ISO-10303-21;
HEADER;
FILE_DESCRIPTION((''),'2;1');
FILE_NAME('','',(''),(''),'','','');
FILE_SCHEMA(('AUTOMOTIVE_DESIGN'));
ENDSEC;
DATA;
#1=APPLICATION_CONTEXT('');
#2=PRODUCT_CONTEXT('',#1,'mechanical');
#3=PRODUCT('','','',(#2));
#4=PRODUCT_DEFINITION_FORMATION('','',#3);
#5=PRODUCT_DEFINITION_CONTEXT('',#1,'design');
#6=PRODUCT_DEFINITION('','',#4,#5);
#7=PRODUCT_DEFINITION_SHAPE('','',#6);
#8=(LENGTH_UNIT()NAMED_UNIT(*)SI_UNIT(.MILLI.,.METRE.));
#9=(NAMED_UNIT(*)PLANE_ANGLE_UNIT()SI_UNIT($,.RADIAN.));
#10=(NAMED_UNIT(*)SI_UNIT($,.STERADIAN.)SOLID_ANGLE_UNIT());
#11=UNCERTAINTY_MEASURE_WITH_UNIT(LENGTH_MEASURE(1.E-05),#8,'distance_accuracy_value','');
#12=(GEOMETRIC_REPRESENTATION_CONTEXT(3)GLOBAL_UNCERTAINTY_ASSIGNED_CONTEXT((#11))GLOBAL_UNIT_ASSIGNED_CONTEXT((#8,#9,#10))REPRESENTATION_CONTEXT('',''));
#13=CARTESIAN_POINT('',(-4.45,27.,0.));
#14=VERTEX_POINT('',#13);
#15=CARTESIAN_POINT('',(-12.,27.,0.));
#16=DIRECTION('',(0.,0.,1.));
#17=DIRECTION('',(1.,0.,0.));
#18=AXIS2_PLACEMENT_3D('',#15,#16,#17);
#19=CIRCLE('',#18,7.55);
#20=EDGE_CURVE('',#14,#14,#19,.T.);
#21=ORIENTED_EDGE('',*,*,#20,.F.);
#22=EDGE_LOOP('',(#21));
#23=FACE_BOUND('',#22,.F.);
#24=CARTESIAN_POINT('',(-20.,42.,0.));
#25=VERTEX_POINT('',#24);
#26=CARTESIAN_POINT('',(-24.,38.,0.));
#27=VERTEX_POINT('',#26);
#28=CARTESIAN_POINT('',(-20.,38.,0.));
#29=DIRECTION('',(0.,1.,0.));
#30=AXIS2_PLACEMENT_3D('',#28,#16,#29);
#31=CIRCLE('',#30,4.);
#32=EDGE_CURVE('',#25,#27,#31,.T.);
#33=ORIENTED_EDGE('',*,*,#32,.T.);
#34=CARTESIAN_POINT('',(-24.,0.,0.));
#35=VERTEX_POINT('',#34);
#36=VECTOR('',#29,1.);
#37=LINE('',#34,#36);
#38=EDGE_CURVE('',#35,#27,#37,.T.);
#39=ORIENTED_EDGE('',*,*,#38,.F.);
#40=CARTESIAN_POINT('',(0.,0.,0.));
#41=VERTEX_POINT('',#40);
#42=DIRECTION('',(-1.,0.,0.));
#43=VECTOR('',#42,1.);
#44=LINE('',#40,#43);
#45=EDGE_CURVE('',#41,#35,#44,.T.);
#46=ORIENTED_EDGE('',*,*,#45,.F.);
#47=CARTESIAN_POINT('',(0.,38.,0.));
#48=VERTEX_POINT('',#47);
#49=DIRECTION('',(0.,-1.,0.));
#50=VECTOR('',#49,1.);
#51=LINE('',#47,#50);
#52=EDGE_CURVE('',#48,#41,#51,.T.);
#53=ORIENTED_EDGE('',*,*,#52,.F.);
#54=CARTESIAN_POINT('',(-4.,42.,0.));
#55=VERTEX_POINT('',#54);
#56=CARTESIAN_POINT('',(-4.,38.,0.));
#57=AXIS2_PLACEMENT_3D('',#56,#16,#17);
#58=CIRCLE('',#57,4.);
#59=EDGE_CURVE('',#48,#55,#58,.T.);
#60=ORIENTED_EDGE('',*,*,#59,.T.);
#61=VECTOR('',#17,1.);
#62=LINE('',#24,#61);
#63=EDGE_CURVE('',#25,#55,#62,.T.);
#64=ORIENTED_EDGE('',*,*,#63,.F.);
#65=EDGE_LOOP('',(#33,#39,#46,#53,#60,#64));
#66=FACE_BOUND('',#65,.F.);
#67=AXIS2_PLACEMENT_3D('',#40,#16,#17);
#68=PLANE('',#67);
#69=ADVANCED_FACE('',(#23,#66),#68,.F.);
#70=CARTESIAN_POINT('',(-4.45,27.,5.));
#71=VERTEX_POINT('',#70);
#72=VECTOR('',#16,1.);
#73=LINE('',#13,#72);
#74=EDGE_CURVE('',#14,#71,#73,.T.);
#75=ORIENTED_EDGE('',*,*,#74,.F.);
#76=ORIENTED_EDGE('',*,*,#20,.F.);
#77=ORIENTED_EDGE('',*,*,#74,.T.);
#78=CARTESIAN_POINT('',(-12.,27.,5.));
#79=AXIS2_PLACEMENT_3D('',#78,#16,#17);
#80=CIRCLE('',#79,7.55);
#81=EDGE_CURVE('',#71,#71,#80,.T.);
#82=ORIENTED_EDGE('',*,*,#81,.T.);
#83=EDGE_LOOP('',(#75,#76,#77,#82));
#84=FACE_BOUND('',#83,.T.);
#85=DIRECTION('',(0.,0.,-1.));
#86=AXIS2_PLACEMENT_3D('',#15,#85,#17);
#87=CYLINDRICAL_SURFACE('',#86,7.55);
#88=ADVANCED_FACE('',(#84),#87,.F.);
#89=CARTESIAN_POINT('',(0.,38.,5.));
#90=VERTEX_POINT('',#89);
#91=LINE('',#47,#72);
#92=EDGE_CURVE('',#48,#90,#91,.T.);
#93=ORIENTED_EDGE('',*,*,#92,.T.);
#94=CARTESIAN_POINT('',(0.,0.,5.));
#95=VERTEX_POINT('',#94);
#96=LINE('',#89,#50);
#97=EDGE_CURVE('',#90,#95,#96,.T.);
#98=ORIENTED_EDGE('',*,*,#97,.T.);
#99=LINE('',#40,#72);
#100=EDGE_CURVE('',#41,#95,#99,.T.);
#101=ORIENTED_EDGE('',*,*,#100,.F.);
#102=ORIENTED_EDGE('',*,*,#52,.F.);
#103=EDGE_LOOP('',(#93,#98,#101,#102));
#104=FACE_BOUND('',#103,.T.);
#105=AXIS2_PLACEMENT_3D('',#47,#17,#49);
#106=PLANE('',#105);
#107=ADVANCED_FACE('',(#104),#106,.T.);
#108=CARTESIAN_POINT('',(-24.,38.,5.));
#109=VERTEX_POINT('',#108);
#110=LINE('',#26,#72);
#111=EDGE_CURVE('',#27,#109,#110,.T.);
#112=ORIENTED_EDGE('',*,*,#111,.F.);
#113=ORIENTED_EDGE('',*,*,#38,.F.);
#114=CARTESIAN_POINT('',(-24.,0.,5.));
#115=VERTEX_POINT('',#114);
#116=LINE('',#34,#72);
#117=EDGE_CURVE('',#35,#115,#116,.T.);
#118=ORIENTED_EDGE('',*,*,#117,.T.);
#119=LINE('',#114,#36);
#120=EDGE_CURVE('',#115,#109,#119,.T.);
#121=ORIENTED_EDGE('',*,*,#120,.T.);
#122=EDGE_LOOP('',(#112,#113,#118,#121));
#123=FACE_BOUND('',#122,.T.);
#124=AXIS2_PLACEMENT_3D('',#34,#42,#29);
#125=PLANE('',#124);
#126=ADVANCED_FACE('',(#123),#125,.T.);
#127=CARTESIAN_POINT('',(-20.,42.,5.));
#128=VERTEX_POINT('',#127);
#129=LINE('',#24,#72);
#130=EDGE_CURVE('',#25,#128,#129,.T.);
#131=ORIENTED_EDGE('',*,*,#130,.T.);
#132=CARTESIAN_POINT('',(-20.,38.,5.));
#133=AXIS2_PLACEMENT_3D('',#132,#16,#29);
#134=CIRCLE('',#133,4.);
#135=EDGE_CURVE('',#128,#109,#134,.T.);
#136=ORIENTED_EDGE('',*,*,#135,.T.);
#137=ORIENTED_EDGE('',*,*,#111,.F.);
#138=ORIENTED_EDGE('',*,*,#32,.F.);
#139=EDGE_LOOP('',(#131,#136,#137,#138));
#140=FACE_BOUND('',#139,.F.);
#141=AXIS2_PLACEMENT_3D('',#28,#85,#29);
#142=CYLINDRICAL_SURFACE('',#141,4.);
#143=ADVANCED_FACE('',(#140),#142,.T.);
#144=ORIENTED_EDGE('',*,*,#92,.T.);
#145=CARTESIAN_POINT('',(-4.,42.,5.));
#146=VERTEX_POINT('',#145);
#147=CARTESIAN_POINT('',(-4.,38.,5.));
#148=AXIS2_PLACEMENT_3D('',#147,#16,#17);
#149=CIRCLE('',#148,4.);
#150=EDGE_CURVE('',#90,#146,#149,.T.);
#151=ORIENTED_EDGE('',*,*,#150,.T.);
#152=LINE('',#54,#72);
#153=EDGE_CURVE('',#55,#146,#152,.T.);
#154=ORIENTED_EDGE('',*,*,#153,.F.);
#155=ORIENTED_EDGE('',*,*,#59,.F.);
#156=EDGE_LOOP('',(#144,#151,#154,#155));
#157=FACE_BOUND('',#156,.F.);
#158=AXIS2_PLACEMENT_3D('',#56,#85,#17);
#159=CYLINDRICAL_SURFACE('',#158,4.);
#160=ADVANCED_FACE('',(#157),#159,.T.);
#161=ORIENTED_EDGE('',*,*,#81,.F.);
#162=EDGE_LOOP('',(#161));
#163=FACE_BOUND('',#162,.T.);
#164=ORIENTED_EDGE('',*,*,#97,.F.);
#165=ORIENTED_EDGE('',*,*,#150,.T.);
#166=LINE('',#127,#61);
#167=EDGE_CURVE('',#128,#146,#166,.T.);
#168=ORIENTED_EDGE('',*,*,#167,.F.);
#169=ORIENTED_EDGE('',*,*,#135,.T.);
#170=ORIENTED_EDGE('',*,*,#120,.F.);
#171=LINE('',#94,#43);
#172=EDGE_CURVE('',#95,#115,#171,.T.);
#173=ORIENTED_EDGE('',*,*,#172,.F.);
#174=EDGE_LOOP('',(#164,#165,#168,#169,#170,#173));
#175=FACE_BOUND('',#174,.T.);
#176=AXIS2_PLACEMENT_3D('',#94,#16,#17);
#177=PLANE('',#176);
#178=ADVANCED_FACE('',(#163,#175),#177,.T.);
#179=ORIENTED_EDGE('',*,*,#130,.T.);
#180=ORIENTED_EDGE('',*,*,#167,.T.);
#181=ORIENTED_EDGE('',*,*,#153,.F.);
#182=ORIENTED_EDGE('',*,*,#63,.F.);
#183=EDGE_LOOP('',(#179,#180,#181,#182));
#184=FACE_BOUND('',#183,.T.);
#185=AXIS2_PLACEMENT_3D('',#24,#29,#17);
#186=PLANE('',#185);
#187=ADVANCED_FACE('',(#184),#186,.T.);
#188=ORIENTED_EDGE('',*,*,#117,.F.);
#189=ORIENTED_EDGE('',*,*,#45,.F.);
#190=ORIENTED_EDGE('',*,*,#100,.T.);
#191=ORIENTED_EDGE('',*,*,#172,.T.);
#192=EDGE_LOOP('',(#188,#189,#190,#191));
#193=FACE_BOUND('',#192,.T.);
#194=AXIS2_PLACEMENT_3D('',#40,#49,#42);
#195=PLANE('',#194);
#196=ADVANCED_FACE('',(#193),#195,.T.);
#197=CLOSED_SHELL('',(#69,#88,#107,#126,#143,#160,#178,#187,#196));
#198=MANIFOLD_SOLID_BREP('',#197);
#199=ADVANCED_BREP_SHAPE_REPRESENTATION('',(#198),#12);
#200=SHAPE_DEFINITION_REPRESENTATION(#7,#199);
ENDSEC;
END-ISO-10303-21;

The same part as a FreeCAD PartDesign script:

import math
import FreeCAD as App
import Part
import Sketcher

V = App.Vector

doc = App.newDocument("Part")
params = doc.addObject("Spreadsheet::Sheet", "Params")
for row, (alias, value) in enumerate([
    ("sketch1_radius", "4 mm"),
    ("sketch1_diameter", "15.1 mm"),
    ("sketch1_width", "24 mm"),
    ("pad1_length", "5 mm"),
], start=1):
    params.set(f"A{row}", alias)
    params.set(f"B{row}", "=" + value)
    params.setAlias(f"B{row}", alias)

body = doc.addObject("PartDesign::Body", "Body")

sketch1 = doc.addObject("Sketcher::SketchObject", "Sketch")
body.addObject(sketch1)
sketch1.AttachmentSupport = (doc.XY_Plane, [""])
sketch1.MapMode = "FlatFace"
sketch1.addGeometry([
    Part.LineSegment(V(-24, 0, 0), V(0, 0, 0)),
    Part.LineSegment(V(0, 0, 0), V(0, 38, 0)),
    Part.ArcOfCircle(Part.Circle(V(-4, 38, 0), V(0, 0, 1), 4), math.radians(0), math.radians(90)),
    Part.LineSegment(V(-4, 42, 0), V(-20, 42, 0)),
    Part.ArcOfCircle(Part.Circle(V(-20, 38, 0), V(0, 0, 1), 4), math.radians(90), math.radians(180)),
    Part.LineSegment(V(-24, 38, 0), V(-24, 0, 0)),
    Part.Circle(V(-12, 27, 0), V(0, 0, 1), 7.55),
], False)
sketch1.addConstraint([
    Sketcher.Constraint("Coincident", 0, 2, 1, 1),
    Sketcher.Constraint("Tangent", 1, 2, 2, 1),
    Sketcher.Constraint("Tangent", 2, 2, 3, 1),
    Sketcher.Constraint("Tangent", 3, 2, 4, 1),
    Sketcher.Constraint("Tangent", 4, 2, 5, 1),
    Sketcher.Constraint("Coincident", 5, 2, 0, 1),
    Sketcher.Constraint("Horizontal", 0),
    Sketcher.Constraint("Vertical", 1),
    Sketcher.Constraint("Horizontal", 3),
    Sketcher.Constraint("Vertical", 5),
    Sketcher.Constraint("Coincident", 0, 2, -1, 1),
    Sketcher.Constraint("Equal", 2, 4),
    Sketcher.Constraint("Radius", 2, 4.0),
    Sketcher.Constraint("Diameter", 6, 15.1),
    Sketcher.Constraint("DistanceX", 0, 1, 0, 2, 24.0),
    Sketcher.Constraint("DistanceY", -1, 1, 2, 2, 42.0),
    Sketcher.Constraint("DistanceX", 6, 3, -1, 1, 12.0),
    Sketcher.Constraint("DistanceY", -1, 1, 6, 3, 27.0),
])
sketch1.setExpression("Constraints[12]", "Params.sketch1_radius")
sketch1.setExpression("Constraints[13]", "Params.sketch1_diameter")
sketch1.setExpression("Constraints[14]", "Params.sketch1_width")
pad1 = doc.addObject("PartDesign::Pad", "Pad")
body.addObject(pad1)
pad1.Profile = sketch1
pad1.setExpression("Length", "Params.pad1_length")

doc.recompute()
